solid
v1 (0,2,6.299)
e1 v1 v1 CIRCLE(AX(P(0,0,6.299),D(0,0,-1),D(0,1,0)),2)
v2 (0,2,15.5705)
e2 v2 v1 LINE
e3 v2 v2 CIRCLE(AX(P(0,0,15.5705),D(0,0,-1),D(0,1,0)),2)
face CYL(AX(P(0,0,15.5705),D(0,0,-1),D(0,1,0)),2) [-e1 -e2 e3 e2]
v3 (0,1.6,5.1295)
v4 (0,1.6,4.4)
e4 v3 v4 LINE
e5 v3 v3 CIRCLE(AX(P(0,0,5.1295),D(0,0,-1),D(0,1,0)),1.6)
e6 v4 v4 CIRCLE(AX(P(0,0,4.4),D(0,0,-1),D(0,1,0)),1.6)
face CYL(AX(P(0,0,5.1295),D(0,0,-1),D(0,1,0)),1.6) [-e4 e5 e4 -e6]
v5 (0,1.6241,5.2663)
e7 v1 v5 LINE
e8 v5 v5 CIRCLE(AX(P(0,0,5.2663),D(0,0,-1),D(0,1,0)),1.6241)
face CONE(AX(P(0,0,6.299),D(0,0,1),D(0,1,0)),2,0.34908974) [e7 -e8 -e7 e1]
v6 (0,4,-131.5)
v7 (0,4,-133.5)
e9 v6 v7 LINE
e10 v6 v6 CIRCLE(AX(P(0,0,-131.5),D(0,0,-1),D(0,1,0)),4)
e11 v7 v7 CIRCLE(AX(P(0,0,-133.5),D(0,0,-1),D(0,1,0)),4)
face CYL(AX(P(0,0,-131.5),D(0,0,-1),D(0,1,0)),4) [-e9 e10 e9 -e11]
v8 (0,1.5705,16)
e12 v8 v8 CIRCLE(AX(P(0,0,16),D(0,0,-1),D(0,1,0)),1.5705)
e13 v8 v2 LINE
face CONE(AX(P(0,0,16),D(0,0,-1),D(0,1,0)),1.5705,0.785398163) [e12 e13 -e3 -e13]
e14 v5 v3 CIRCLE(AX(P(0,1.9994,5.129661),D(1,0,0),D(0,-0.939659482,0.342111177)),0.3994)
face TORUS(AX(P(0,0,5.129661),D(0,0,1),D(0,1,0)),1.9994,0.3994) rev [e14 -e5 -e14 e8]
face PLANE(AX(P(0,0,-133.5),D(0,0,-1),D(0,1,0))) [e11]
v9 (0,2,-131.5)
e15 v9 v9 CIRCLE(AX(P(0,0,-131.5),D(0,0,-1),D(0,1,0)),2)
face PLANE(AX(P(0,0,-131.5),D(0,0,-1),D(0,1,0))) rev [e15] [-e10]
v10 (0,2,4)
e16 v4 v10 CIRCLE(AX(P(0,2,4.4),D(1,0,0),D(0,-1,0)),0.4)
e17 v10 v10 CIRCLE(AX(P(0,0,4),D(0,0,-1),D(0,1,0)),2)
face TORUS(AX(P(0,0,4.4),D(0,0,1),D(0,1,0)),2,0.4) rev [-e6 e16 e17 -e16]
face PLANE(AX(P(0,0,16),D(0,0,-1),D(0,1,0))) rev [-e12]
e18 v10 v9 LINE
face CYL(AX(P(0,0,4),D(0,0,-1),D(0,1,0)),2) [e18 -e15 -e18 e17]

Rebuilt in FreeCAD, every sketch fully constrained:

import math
import FreeCAD as App
import Part
import Sketcher
from FreeCAD import Vector
Q = App.Units.Quantity

doc = App.newDocument("Part")
body = doc.addObject("PartDesign::Body", "Body")

# Sketch on YZ plane
sketch1 = doc.addObject("Sketcher::SketchObject", "Sketch")
body.addObject(sketch1)
sketch1.AttachmentSupport = (doc.YZ_Plane, [""])
sketch1.MapMode = "FlatFace"
sketch1.addGeometry([
    Part.LineSegment(Vector(0, 4, 0), Vector(0, -133.5, 0)),  # 0
    Part.LineSegment(Vector(0, -133.5, 0), Vector(4, -133.5, 0)),  # 1
    Part.LineSegment(Vector(4, -133.5, 0), Vector(4, -131.5, 0)),  # 2
    Part.LineSegment(Vector(4, -131.5, 0), Vector(2, -131.5, 0)),  # 3
    Part.LineSegment(Vector(2, -131.5, 0), Vector(2, 4, 0)),  # 4
    Part.LineSegment(Vector(2, 4, 0), Vector(0, 4, 0)),  # 5
], False)
sketch1.addConstraint([
    Sketcher.Constraint("Coincident", 0, 2, 1, 1),
    Sketcher.Constraint("Coincident", 1, 2, 2, 1),
    Sketcher.Constraint("Coincident", 2, 2, 3, 1),
    Sketcher.Constraint("Coincident", 3, 2, 4, 1),
    Sketcher.Constraint("Coincident", 4, 2, 5, 1),
    Sketcher.Constraint("Coincident", 5, 2, 0, 1),
    Sketcher.Constraint("Vertical", 0),
    Sketcher.Constraint("Horizontal", 1),
    Sketcher.Constraint("Vertical", 2),
    Sketcher.Constraint("Horizontal", 3),
    Sketcher.Constraint("Vertical", 4),
    Sketcher.Constraint("Horizontal", 5),
    Sketcher.Constraint("PointOnObject", 0, 2, -2),
    Sketcher.Constraint("Equal", 3, 5),
    Sketcher.Constraint("Equal", 5, 2),
    Sketcher.Constraint("DistanceX", 1, 1, 1, 2, Q("4 mm")),
    Sketcher.Constraint("DistanceY", 0, 2, 0, 1, Q("137.5 mm")),
    Sketcher.Constraint("DistanceY", -1, 1, 4, 2, Q("4 mm")),
])
revolution = doc.addObject("PartDesign::Revolution", "Revolution")
body.addObject(revolution)
revolution.Profile = sketch1
revolution.ReferenceAxis = (sketch1, ["V_Axis"])
revolution.Angle = 360

# Sketch on YZ plane
sketch2 = doc.addObject("Sketcher::SketchObject", "Sketch001")
body.addObject(sketch2)
sketch2.AttachmentSupport = (doc.YZ_Plane, [""])
sketch2.MapMode = "FlatFace"
sketch2.addGeometry([
    Part.LineSegment(Vector(0, 16, 0), Vector(0, 3, 0)),  # 0
    Part.LineSegment(Vector(0, 3, 0), Vector(2, 3, 0)),  # 1
    Part.LineSegment(Vector(2, 3, 0), Vector(2, 4, 0)),  # 2
    Part.ArcOfCircle(Part.Circle(Vector(2, 4.4, 0), Vector(0, 0, 1), 0.4), math.radians(180), math.radians(270)),  # 3
    Part.LineSegment(Vector(1.6, 4.4, 0), Vector(1.6, 5.1295, 0)),  # 4
    Part.ArcOfCircle(Part.Circle(Vector(2, 5.1295, 0), Vector(0, 0, 1), 0.400019), math.radians(160.002209), math.radians(180)),  # 5
    Part.LineSegment(Vector(1.6241, 5.2663, 0), Vector(2, 6.299, 0)),  # 6
    Part.LineSegment(Vector(2, 6.299, 0), Vector(2, 15.5705, 0)),  # 7
    Part.LineSegment(Vector(2, 15.5705, 0), Vector(1.5705, 16, 0)),  # 8
    Part.LineSegment(Vector(1.5705, 16, 0), Vector(0, 16, 0)),  # 9
], False)
sketch2.addConstraint([
    Sketcher.Constraint("Coincident", 0, 2, 1, 1),
    Sketcher.Constraint("Coincident", 1, 2, 2, 1),
    Sketcher.Constraint("Coincident", 2, 2, 3, 2),
    Sketcher.Constraint("Tangent", 3, 1, 4, 1),
    Sketcher.Constraint("Tangent", 4, 2, 5, 2),
    Sketcher.Constraint("Tangent", 5, 1, 6, 1),
    Sketcher.Constraint("Coincident", 6, 2, 7, 1),
    Sketcher.Constraint("Coincident", 7, 2, 8, 1),
    Sketcher.Constraint("Coincident", 8, 2, 9, 1),
    Sketcher.Constraint("Coincident", 9, 2, 0, 1),
    Sketcher.Constraint("Vertical", 0),
    Sketcher.Constraint("Horizontal", 1),
    Sketcher.Constraint("Vertical", 2),
    Sketcher.Constraint("Vertical", 4),
    Sketcher.Constraint("Vertical", 7),
    Sketcher.Constraint("Horizontal", 9),
    Sketcher.Constraint("Equal", 3, 5),
    Sketcher.Constraint("PointOnObject", 0, 2, -2),
    Sketcher.Constraint("Vertical", 5, 3, 1, 2),
    Sketcher.Constraint("Vertical", 2, 2, 6, 2),
    Sketcher.Constraint("Radius", 3, Q("0.4 mm")),
    Sketcher.Constraint("DistanceX", 1, 1, 1, 2, Q("2 mm")),
    Sketcher.Constraint("DistanceY", 0, 2, 0, 1, Q("13 mm")),
    Sketcher.Constraint("DistanceY", 2, 1, 2, 2, Q("1 mm")),
    Sketcher.Constraint("Angle", 8, Q("135 deg")),
    Sketcher.Constraint("DistanceY", -1, 1, 0, 2, Q("3 mm")),
    Sketcher.Constraint("Distance", 6, Q("1.099 mm")),
    Sketcher.Constraint("DistanceX", 9, 2, 9, 1, Q("1.5705 mm")),
    Sketcher.Constraint("DistanceY", 4, 1, 4, 2, Q("0.7295 mm")),
])
revolution2 = doc.addObject("PartDesign::Revolution", "Revolution001")
body.addObject(revolution2)
revolution2.Profile = sketch2
revolution2.ReferenceAxis = (sketch2, ["V_Axis"])
revolution2.Angle = 360

doc.recompute()
